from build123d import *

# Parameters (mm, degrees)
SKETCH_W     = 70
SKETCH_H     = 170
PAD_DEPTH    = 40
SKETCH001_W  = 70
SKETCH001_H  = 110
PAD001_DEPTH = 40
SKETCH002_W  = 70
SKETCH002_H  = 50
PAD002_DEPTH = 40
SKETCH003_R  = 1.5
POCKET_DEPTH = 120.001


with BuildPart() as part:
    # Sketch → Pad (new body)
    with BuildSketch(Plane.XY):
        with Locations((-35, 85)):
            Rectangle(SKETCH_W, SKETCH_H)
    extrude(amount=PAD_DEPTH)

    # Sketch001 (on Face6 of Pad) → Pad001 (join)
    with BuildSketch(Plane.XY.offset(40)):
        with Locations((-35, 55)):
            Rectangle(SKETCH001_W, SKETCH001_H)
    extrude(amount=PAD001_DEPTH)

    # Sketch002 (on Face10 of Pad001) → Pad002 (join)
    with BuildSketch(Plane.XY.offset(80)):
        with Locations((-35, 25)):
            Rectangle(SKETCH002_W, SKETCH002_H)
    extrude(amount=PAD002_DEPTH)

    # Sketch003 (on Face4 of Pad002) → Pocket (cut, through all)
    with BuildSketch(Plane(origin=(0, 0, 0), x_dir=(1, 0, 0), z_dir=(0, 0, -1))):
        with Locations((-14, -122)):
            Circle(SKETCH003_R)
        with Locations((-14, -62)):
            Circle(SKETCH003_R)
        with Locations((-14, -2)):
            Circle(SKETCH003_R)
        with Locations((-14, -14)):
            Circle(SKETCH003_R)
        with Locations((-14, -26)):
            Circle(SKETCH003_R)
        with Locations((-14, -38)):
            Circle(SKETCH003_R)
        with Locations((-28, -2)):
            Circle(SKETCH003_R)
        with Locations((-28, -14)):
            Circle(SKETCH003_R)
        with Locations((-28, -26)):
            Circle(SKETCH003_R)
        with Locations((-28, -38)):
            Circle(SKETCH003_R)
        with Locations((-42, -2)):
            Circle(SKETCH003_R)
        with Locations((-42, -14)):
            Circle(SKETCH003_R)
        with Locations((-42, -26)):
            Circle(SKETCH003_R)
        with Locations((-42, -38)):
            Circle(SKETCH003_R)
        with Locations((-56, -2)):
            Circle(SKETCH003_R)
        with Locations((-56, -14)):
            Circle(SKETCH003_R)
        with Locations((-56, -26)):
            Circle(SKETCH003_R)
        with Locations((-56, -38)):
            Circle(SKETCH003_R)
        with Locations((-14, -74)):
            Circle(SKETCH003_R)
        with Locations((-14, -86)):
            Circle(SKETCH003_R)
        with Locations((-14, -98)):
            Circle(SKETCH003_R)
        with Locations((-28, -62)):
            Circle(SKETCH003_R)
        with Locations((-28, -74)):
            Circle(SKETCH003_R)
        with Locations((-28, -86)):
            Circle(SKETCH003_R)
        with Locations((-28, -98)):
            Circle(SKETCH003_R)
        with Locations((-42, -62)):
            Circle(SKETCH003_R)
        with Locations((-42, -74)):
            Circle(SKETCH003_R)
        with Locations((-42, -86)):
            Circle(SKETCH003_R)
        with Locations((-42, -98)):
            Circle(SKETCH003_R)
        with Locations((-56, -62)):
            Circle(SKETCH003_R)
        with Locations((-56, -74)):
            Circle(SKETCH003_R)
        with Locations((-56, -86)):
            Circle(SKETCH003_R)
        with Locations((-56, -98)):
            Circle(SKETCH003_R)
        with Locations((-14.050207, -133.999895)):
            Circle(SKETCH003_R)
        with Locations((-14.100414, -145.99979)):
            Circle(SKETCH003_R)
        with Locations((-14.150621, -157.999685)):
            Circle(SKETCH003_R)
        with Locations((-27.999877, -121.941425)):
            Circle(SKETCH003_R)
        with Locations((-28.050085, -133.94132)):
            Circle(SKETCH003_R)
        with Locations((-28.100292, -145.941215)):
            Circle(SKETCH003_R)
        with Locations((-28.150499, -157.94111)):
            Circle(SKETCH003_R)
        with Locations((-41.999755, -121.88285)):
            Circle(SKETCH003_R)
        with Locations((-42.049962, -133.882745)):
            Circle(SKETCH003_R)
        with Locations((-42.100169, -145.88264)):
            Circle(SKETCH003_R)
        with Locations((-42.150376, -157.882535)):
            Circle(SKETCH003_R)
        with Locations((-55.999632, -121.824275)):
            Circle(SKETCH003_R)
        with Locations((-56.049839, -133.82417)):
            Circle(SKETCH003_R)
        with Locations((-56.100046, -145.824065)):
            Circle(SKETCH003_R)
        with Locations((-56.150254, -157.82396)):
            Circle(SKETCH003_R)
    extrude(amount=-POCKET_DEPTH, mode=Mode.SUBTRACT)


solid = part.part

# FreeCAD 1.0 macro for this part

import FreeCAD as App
import Part
import Sketcher
Q = App.Units.Quantity


def add_polygon(sketch, points):
    """Adds a closed chain of lines whose ends are joined by coincident constraints."""
    first, n = sketch.GeometryCount, len(points)
    for a, b in zip(points, points[1:] + points[:1]):
        sketch.addGeometry(Part.LineSegment(App.Vector(*a, 0), App.Vector(*b, 0)), False)
    for i in range(n):
        sketch.addConstraint(Sketcher.Constraint("Coincident", first + i, 2, first + (i + 1) % n, 1))

doc = App.newDocument("Part")
body = doc.addObject("PartDesign::Body", "Body")

# Sketch on XY plane
sketch1 = body.newObject("Sketcher::SketchObject", "Sketch")
sketch1.AttachmentSupport = (doc.getObject("XY_Plane"), [""])
sketch1.MapMode = "FlatFace"
add_polygon(sketch1, [(-70, 170), (-70, 0), (0, 0), (0, 170)])  # lines 0-3
sketch1.addConstraint(Sketcher.Constraint("Vertical", 0))
sketch1.addConstraint(Sketcher.Constraint("Horizontal", 1))
sketch1.addConstraint(Sketcher.Constraint("Vertical", 2))
sketch1.addConstraint(Sketcher.Constraint("Horizontal", 3))
sketch1.addConstraint(Sketcher.Constraint("Coincident", 1, 2, -1, 1))
sketch1.addConstraint(Sketcher.Constraint("DistanceX", 1, 1, 1, 2, Q("70 mm")))
sketch1.addConstraint(Sketcher.Constraint("DistanceY", 0, 2, 0, 1, Q("170 mm")))
pad1 = body.newObject("PartDesign::Pad", "Pad")
pad1.Profile = sketch1
pad1.Length = 40

# Sketch on XY plane
sketch2 = body.newObject("Sketcher::SketchObject", "Sketch001")
sketch2.AttachmentSupport = (doc.getObject("XY_Plane"), [""])
sketch2.MapMode = "FlatFace"
sketch2.AttachmentOffset = App.Placement(App.Vector(0, 0, 40), App.Rotation())
add_polygon(sketch2, [(-70, 110), (-70, 0), (0, 0), (0, 110)])  # lines 0-3
sketch2.addConstraint(Sketcher.Constraint("Vertical", 0))
sketch2.addConstraint(Sketcher.Constraint("Horizontal", 1))
sketch2.addConstraint(Sketcher.Constraint("Vertical", 2))
sketch2.addConstraint(Sketcher.Constraint("Horizontal", 3))
sketch2.addConstraint(Sketcher.Constraint("Coincident", 1, 2, -1, 1))
sketch2.addConstraint(Sketcher.Constraint("DistanceX", 1, 1, 1, 2, Q("70 mm")))
sketch2.addConstraint(Sketcher.Constraint("DistanceY", 0, 2, 0, 1, Q("110 mm")))
pad2 = body.newObject("PartDesign::Pad", "Pad001")
pad2.Profile = sketch2
pad2.Length = 40

# Sketch on XY plane
sketch3 = body.newObject("Sketcher::SketchObject", "Sketch002")
sketch3.AttachmentSupport = (doc.getObject("XY_Plane"), [""])
sketch3.MapMode = "FlatFace"
sketch3.AttachmentOffset = App.Placement(App.Vector(0, 0, 80), App.Rotation())
add_polygon(sketch3, [(-70, 50), (-70, 0), (0, 0), (0, 50)])  # lines 0-3
sketch3.addConstraint(Sketcher.Constraint("Vertical", 0))
sketch3.addConstraint(Sketcher.Constraint("Horizontal", 1))
sketch3.addConstraint(Sketcher.Constraint("Vertical", 2))
sketch3.addConstraint(Sketcher.Constraint("Horizontal", 3))
sketch3.addConstraint(Sketcher.Constraint("Coincident", 1, 2, -1, 1))
sketch3.addConstraint(Sketcher.Constraint("DistanceX", 1, 1, 1, 2, Q("70 mm")))
sketch3.addConstraint(Sketcher.Constraint("DistanceY", 0, 2, 0, 1, Q("50 mm")))
pad3 = body.newObject("PartDesign::Pad", "Pad002")
pad3.Profile = sketch3
pad3.Length = 40

# Sketch on XY plane
sketch4 = body.newObject("Sketcher::SketchObject", "Sketch003")
sketch4.AttachmentSupport = (doc.getObject("XY_Plane"), [""])
sketch4.MapMode = "FlatFace"
sketch4.addGeometry(Part.Circle(App.Vector(-14, 122, 0), App.Vector(0, 0, 1), 1.5), False)
sketch4.addGeometry(Part.Circle(App.Vector(-14, 62, 0), App.Vector(0, 0, 1), 1.5), False)
sketch4.addGeometry(Part.Circle(App.Vector(-14, 2, 0), App.Vector(0, 0, 1), 1.5), False)
sketch4.addGeometry(Part.Circle(App.Vector(-14, 14, 0), App.Vector(0, 0, 1), 1.5), False)
sketch4.addGeometry(Part.Circle(App.Vector(-14, 26, 0), App.Vector(0, 0, 1), 1.5), False)
sketch4.addGeometry(Part.Circle(App.Vector(-14, 38, 0), App.Vector(0, 0, 1), 1.5), False)
sketch4.addGeometry(Part.Circle(App.Vector(-28, 2, 0), App.Vector(0, 0, 1), 1.5), False)
sketch4.addGeometry(Part.Circle(App.Vector(-28, 14, 0), App.Vector(0, 0, 1), 1.5), False)
sketch4.addGeometry(Part.Circle(App.Vector(-28, 26, 0), App.Vector(0, 0, 1), 1.5), False)
sketch4.addGeometry(Part.Circle(App.Vector(-28, 38, 0), App.Vector(0, 0, 1), 1.5), False)
sketch4.addGeometry(Part.Circle(App.Vector(-42, 2, 0), App.Vector(0, 0, 1), 1.5), False)
sketch4.addGeometry(Part.Circle(App.Vector(-42, 14, 0), App.Vector(0, 0, 1), 1.5), False)
sketch4.addGeometry(Part.Circle(App.Vector(-42, 26, 0), App.Vector(0, 0, 1), 1.5), False)
sketch4.addGeometry(Part.Circle(App.Vector(-42, 38, 0), App.Vector(0, 0, 1), 1.5), False)
sketch4.addGeometry(Part.Circle(App.Vector(-56, 2, 0), App.Vector(0, 0, 1), 1.5), False)
sketch4.addGeometry(Part.Circle(App.Vector(-56, 14, 0), App.Vector(0, 0, 1), 1.5), False)
sketch4.addGeometry(Part.Circle(App.Vector(-56, 26, 0), App.Vector(0, 0, 1), 1.5), False)
sketch4.addGeometry(Part.Circle(App.Vector(-56, 38, 0), App.Vector(0, 0, 1), 1.5), False)
sketch4.addGeometry(Part.Circle(App.Vector(-14, 74, 0), App.Vector(0, 0, 1), 1.5), False)
sketch4.addGeometry(Part.Circle(App.Vector(-14, 86, 0), App.Vector(0, 0, 1), 1.5), False)
sketch4.addGeometry(Part.Circle(App.Vector(-14, 98, 0), App.Vector(0, 0, 1), 1.5), False)
sketch4.addGeometry(Part.Circle(App.Vector(-28, 62, 0), App.Vector(0, 0, 1), 1.5), False)
sketch4.addGeometry(Part.Circle(App.Vector(-28, 74, 0), App.Vector(0, 0, 1), 1.5), False)
sketch4.addGeometry(Part.Circle(App.Vector(-28, 86, 0), App.Vector(0, 0, 1), 1.5), False)
sketch4.addGeometry(Part.Circle(App.Vector(-28, 98, 0), App.Vector(0, 0, 1), 1.5), False)
sketch4.addGeometry(Part.Circle(App.Vector(-42, 62, 0), App.Vector(0, 0, 1), 1.5), False)
sketch4.addGeometry(Part.Circle(App.Vector(-42, 74, 0), App.Vector(0, 0, 1), 1.5), False)
sketch4.addGeometry(Part.Circle(App.Vector(-42, 86, 0), App.Vector(0, 0, 1), 1.5), False)
sketch4.addGeometry(Part.Circle(App.Vector(-42, 98, 0), App.Vector(0, 0, 1), 1.5), False)
sketch4.addGeometry(Part.Circle(App.Vector(-56, 62, 0), App.Vector(0, 0, 1), 1.5), False)
sketch4.addGeometry(Part.Circle(App.Vector(-56, 74, 0), App.Vector(0, 0, 1), 1.5), False)
sketch4.addGeometry(Part.Circle(App.Vector(-56, 86, 0), App.Vector(0, 0, 1), 1.5), False)
sketch4.addGeometry(Part.Circle(App.Vector(-56, 98, 0), App.Vector(0, 0, 1), 1.5), False)
sketch4.addGeometry(Part.Circle(App.Vector(-14.1, 134, 0), App.Vector(0, 0, 1), 1.5), False)
sketch4.addGeometry(Part.Circle(App.Vector(-14.1, 146, 0), App.Vector(0, 0, 1), 1.5), False)
sketch4.addGeometry(Part.Circle(App.Vector(-14.2, 158, 0), App.Vector(0, 0, 1), 1.5), False)
sketch4.addGeometry(Part.Circle(App.Vector(-28, 121.9, 0), App.Vector(0, 0, 1), 1.5), False)
sketch4.addGeometry(Part.Circle(App.Vector(-28.1, 133.9, 0), App.Vector(0, 0, 1), 1.5), False)
sketch4.addGeometry(Part.Circle(App.Vector(-28.1, 145.9, 0), App.Vector(0, 0, 1), 1.5), False)
sketch4.addGeometry(Part.Circle(App.Vector(-28.2, 157.9, 0), App.Vector(0, 0, 1), 1.5), False)
sketch4.addGeometry(Part.Circle(App.Vector(-42, 121.9, 0), App.Vector(0, 0, 1), 1.5), False)
sketch4.addGeometry(Part.Circle(App.Vector(-42, 133.9, 0), App.Vector(0, 0, 1), 1.5), False)
sketch4.addGeometry(Part.Circle(App.Vector(-42.1, 145.9, 0), App.Vector(0, 0, 1), 1.5), False)
sketch4.addGeometry(Part.Circle(App.Vector(-42.2, 157.9, 0), App.Vector(0, 0, 1), 1.5), False)
sketch4.addGeometry(Part.Circle(App.Vector(-56, 121.8, 0), App.Vector(0, 0, 1), 1.5), False)
sketch4.addGeometry(Part.Circle(App.Vector(-56, 133.8, 0), App.Vector(0, 0, 1), 1.5), False)
sketch4.addGeometry(Part.Circle(App.Vector(-56.1, 145.8, 0), App.Vector(0, 0, 1), 1.5), False)
sketch4.addGeometry(Part.Circle(App.Vector(-56.2, 157.8, 0), App.Vector(0, 0, 1), 1.5), False)
sketch4.addConstraint(Sketcher.Constraint("Equal", 0, 1))
sketch4.addConstraint(Sketcher.Constraint("Equal", 1, 2))
sketch4.addConstraint(Sketcher.Constraint("Equal", 2, 3))
sketch4.addConstraint(Sketcher.Constraint("Equal", 3, 4))
sketch4.addConstraint(Sketcher.Constraint("Equal", 4, 5))
sketch4.addConstraint(Sketcher.Constraint("Equal", 5, 6))
sketch4.addConstraint(Sketcher.Constraint("Equal", 6, 7))
sketch4.addConstraint(Sketcher.Constraint("Equal", 7, 8))
sketch4.addConstraint(Sketcher.Constraint("Equal", 8, 9))
sketch4.addConstraint(Sketcher.Constraint("Equal", 9, 10))
sketch4.addConstraint(Sketcher.Constraint("Equal", 10, 11))
sketch4.addConstraint(Sketcher.Constraint("Equal", 11, 12))
sketch4.addConstraint(Sketcher.Constraint("Equal", 12, 13))
sketch4.addConstraint(Sketcher.Constraint("Equal", 13, 14))
sketch4.addConstraint(Sketcher.Constraint("Equal", 14, 15))
sketch4.addConstraint(Sketcher.Constraint("Equal", 15, 16))
sketch4.addConstraint(Sketcher.Constraint("Equal", 16, 17))
sketch4.addConstraint(Sketcher.Constraint("Equal", 17, 18))
sketch4.addConstraint(Sketcher.Constraint("Equal", 18, 19))
sketch4.addConstraint(Sketcher.Constraint("Equal", 19, 20))
sketch4.addConstraint(Sketcher.Constraint("Equal", 20, 21))
sketch4.addConstraint(Sketcher.Constraint("Equal", 21, 22))
sketch4.addConstraint(Sketcher.Constraint("Equal", 22, 23))
sketch4.addConstraint(Sketcher.Constraint("Equal", 23, 24))
sketch4.addConstraint(Sketcher.Constraint("Equal", 24, 25))
sketch4.addConstraint(Sketcher.Constraint("Equal", 25, 26))
sketch4.addConstraint(Sketcher.Constraint("Equal", 26, 27))
sketch4.addConstraint(Sketcher.Constraint("Equal", 27, 28))
sketch4.addConstraint(Sketcher.Constraint("Equal", 28, 29))
sketch4.addConstraint(Sketcher.Constraint("Equal", 29, 30))
sketch4.addConstraint(Sketcher.Constraint("Equal", 30, 31))
sketch4.addConstraint(Sketcher.Constraint("Equal", 31, 32))
sketch4.addConstraint(Sketcher.Constraint("Equal", 32, 33))
sketch4.addConstraint(Sketcher.Constraint("Equal", 33, 34))
sketch4.addConstraint(Sketcher.Constraint("Equal", 34, 35))
sketch4.addConstraint(Sketcher.Constraint("Equal", 35, 36))
sketch4.addConstraint(Sketcher.Constraint("Equal", 36, 37))
sketch4.addConstraint(Sketcher.Constraint("Equal", 37, 38))
sketch4.addConstraint(Sketcher.Constraint("Equal", 38, 39))
sketch4.addConstraint(Sketcher.Constraint("Equal", 39, 40))
sketch4.addConstraint(Sketcher.Constraint("Equal", 40, 41))
sketch4.addConstraint(Sketcher.Constraint("Equal", 41, 42))
sketch4.addConstraint(Sketcher.Constraint("Equal", 42, 43))
sketch4.addConstraint(Sketcher.Constraint("Equal", 43, 44))
sketch4.addConstraint(Sketcher.Constraint("Equal", 44, 45))
sketch4.addConstraint(Sketcher.Constraint("Equal", 45, 46))
sketch4.addConstraint(Sketcher.Constraint("Equal", 46, 47))
sketch4.addConstraint(Sketcher.Constraint("Horizontal", 2, 3, 6, 3))
sketch4.addConstraint(Sketcher.Constraint("Horizontal", 3, 3, 7, 3))
sketch4.addConstraint(Sketcher.Constraint("Horizontal", 4, 3, 8, 3))
sketch4.addConstraint(Sketcher.Constraint("Horizontal", 5, 3, 9, 3))
sketch4.addConstraint(Sketcher.Constraint("Horizontal", 6, 3, 10, 3))
sketch4.addConstraint(Sketcher.Constraint("Horizontal", 7, 3, 11, 3))
sketch4.addConstraint(Sketcher.Constraint("Horizontal", 8, 3, 12, 3))
sketch4.addConstraint(Sketcher.Constraint("Horizontal", 9, 3, 13, 3))
sketch4.addConstraint(Sketcher.Constraint("Horizontal", 10, 3, 14, 3))
sketch4.addConstraint(Sketcher.Constraint("Horizontal", 11, 3, 15, 3))
sketch4.addConstraint(Sketcher.Constraint("Horizontal", 12, 3, 16, 3))
sketch4.addConstraint(Sketcher.Constraint("Horizontal", 13, 3, 17, 3))
sketch4.addConstraint(Sketcher.Constraint("Horizontal", 1, 3, 21, 3))
sketch4.addConstraint(Sketcher.Constraint("Horizontal", 18, 3, 22, 3))
sketch4.addConstraint(Sketcher.Constraint("Horizontal", 19, 3, 23, 3))
sketch4.addConstraint(Sketcher.Constraint("Horizontal", 20, 3, 24, 3))
sketch4.addConstraint(Sketcher.Constraint("Horizontal", 21, 3, 25, 3))
sketch4.addConstraint(Sketcher.Constraint("Horizontal", 22, 3, 26, 3))
sketch4.addConstraint(Sketcher.Constraint("Horizontal", 23, 3, 27, 3))
sketch4.addConstraint(Sketcher.Constraint("Horizontal", 24, 3, 28, 3))
sketch4.addConstraint(Sketcher.Constraint("Horizontal", 25, 3, 29, 3))
sketch4.addConstraint(Sketcher.Constraint("Horizontal", 26, 3, 30, 3))
sketch4.addConstraint(Sketcher.Constraint("Horizontal", 27, 3, 31, 3))
sketch4.addConstraint(Sketcher.Constraint("Horizontal", 28, 3, 32, 3))
sketch4.addConstraint(Sketcher.Constraint("Vertical", 0, 3, 1, 3))
sketch4.addConstraint(Sketcher.Constraint("Vertical", 1, 3, 2, 3))
sketch4.addConstraint(Sketcher.Constraint("Vertical", 2, 3, 3, 3))
sketch4.addConstraint(Sketcher.Constraint("Vertical", 3, 3, 4, 3))
sketch4.addConstraint(Sketcher.Constraint("Vertical", 4, 3, 5, 3))
sketch4.addConstraint(Sketcher.Constraint("Vertical", 6, 3, 7, 3))
sketch4.addConstraint(Sketcher.Constraint("Vertical", 7, 3, 8, 3))
sketch4.addConstraint(Sketcher.Constraint("Vertical", 8, 3, 9, 3))
sketch4.addConstraint(Sketcher.Constraint("Vertical", 10, 3, 11, 3))
sketch4.addConstraint(Sketcher.Constraint("Vertical", 11, 3, 12, 3))
sketch4.addConstraint(Sketcher.Constraint("Vertical", 12, 3, 13, 3))
sketch4.addConstraint(Sketcher.Constraint("Vertical", 14, 3, 15, 3))
sketch4.addConstraint(Sketcher.Constraint("Vertical", 15, 3, 16, 3))
sketch4.addConstraint(Sketcher.Constraint("Vertical", 16, 3, 17, 3))
sketch4.addConstraint(Sketcher.Constraint("Vertical", 5, 3, 18, 3))
sketch4.addConstraint(Sketcher.Constraint("Vertical", 18, 3, 19, 3))
sketch4.addConstraint(Sketcher.Constraint("Vertical", 19, 3, 20, 3))
sketch4.addConstraint(Sketcher.Constraint("Vertical", 9, 3, 21, 3))
sketch4.addConstraint(Sketcher.Constraint("Vertical", 21, 3, 22, 3))
sketch4.addConstraint(Sketcher.Constraint("Vertical", 22, 3, 23, 3))
sketch4.addConstraint(Sketcher.Constraint("Vertical", 23, 3, 24, 3))
sketch4.addConstraint(Sketcher.Constraint("Vertical", 13, 3, 25, 3))
sketch4.addConstraint(Sketcher.Constraint("Vertical", 25, 3, 26, 3))
sketch4.addConstraint(Sketcher.Constraint("Vertical", 26, 3, 27, 3))
sketch4.addConstraint(Sketcher.Constraint("Vertical", 27, 3, 28, 3))
sketch4.addConstraint(Sketcher.Constraint("Vertical", 17, 3, 29, 3))
sketch4.addConstraint(Sketcher.Constraint("Vertical", 29, 3, 30, 3))
sketch4.addConstraint(Sketcher.Constraint("Vertical", 30, 3, 31, 3))
sketch4.addConstraint(Sketcher.Constraint("Vertical", 31, 3, 32, 3))
sketch4.addConstraint(Sketcher.Constraint("Diameter", 0, Q("3 mm")))
sketch4.addConstraint(Sketcher.Constraint("DistanceX", 0, 3, -1, 1, Q("14 mm")))
sketch4.addConstraint(Sketcher.Constraint("DistanceY", -1, 1, 0, 3, Q("122 mm")))
sketch4.addConstraint(Sketcher.Constraint("DistanceY", -1, 1, 1, 3, Q("62 mm")))
sketch4.addConstraint(Sketcher.Constraint("DistanceY", -1, 1, 2, 3, Q("2 mm")))
sketch4.addConstraint(Sketcher.Constraint("DistanceY", -1, 1, 3, 3, Q("14 mm")))
sketch4.addConstraint(Sketcher.Constraint("DistanceY", -1, 1, 4, 3, Q("26 mm")))
sketch4.addConstraint(Sketcher.Constraint("DistanceY", -1, 1, 5, 3, Q("38 mm")))
sketch4.addConstraint(Sketcher.Constraint("DistanceX", 6, 3, -1, 1, Q("28 mm")))
sketch4.addConstraint(Sketcher.Constraint("DistanceX", 10, 3, -1, 1, Q("42 mm")))
sketch4.addConstraint(Sketcher.Constraint("DistanceX", 14, 3, -1, 1, Q("56 mm")))
sketch4.addConstraint(Sketcher.Constraint("DistanceY", -1, 1, 18, 3, Q("74 mm")))
sketch4.addConstraint(Sketcher.Constraint("DistanceY", -1, 1, 19, 3, Q("86 mm")))
sketch4.addConstraint(Sketcher.Constraint("DistanceY", -1, 1, 20, 3, Q("98 mm")))
sketch4.addConstraint(Sketcher.Constraint("DistanceX", 39, 3, -1, 1, Q("28.150499 mm")))
sketch4.addConstraint(Sketcher.Constraint("DistanceY", -1, 1, 34, 3, Q("145.99979 mm")))
sketch4.addConstraint(Sketcher.Constraint("DistanceX", 35, 3, -1, 1, Q("14.150621 mm")))
sketch4.addConstraint(Sketcher.Constraint("DistanceY", -1, 1, 37, 3, Q("133.94132 mm")))
sketch4.addConstraint(Sketcher.Constraint("DistanceX", 38, 3, -1, 1, Q("28.100292 mm")))
sketch4.addConstraint(Sketcher.Constraint("DistanceY", -1, 1, 39, 3, Q("157.94111 mm")))
sketch4.addConstraint(Sketcher.Constraint("DistanceY", -1, 1, 40, 3, Q("121.88285 mm")))
sketch4.addConstraint(Sketcher.Constraint("DistanceX", 42, 3, -1, 1, Q("42.100169 mm")))
sketch4.addConstraint(Sketcher.Constraint("DistanceY", -1, 1, 42, 3, Q("145.88264 mm")))
sketch4.addConstraint(Sketcher.Constraint("DistanceX", 44, 3, -1, 1, Q("55.999632 mm")))
sketch4.addConstraint(Sketcher.Constraint("DistanceX", 45, 3, -1, 1, Q("56.049839 mm")))
sketch4.addConstraint(Sketcher.Constraint("DistanceY", -1, 1, 45, 3, Q("133.82417 mm")))
sketch4.addConstraint(Sketcher.Constraint("DistanceY", -1, 1, 47, 3, Q("157.82396 mm")))
sketch4.addConstraint(Sketcher.Constraint("DistanceY", 33, 3, 35, 3, Q("23.99979 mm")))
sketch4.addConstraint(Sketcher.Constraint("DistanceX", 36, 3, 33, 3, Q("13.94967 mm")))
sketch4.addConstraint(Sketcher.Constraint("DistanceY", 36, 3, 33, 3, Q("12.05847 mm")))
sketch4.addConstraint(Sketcher.Constraint("DistanceX", 37, 3, 34, 3, Q("13.949671 mm")))
sketch4.addConstraint(Sketcher.Constraint("DistanceY", 33, 3, 38, 3, Q("11.94132 mm")))
sketch4.addConstraint(Sketcher.Constraint("DistanceX", 40, 3, 37, 3, Q("13.94967 mm")))
sketch4.addConstraint(Sketcher.Constraint("DistanceX", 41, 3, 38, 3, Q("13.94967 mm")))
sketch4.addConstraint(Sketcher.Constraint("DistanceY", 41, 3, 38, 3, Q("12.05847 mm")))
sketch4.addConstraint(Sketcher.Constraint("DistanceY", 38, 3, 43, 3, Q("11.94132 mm")))
sketch4.addConstraint(Sketcher.Constraint("DistanceX", 43, 3, 37, 3, Q("14.100291 mm")))
sketch4.addConstraint(Sketcher.Constraint("DistanceY", 44, 3, 41, 3, Q("12.05847 mm")))
sketch4.addConstraint(Sketcher.Constraint("DistanceY", 41, 3, 46, 3, Q("11.94132 mm")))
sketch4.addConstraint(Sketcher.Constraint("DistanceX", 46, 3, 43, 3, Q("13.94967 mm")))
sketch4.addConstraint(Sketcher.Constraint("DistanceX", 47, 3, 41, 3, Q("14.100292 mm")))
sketch4.addConstraint(Sketcher.Constraint("DistanceX", 33, 3, -1, 1, Q("14.050207 mm")))
sketch4.addConstraint(Sketcher.Constraint("DistanceY", -1, 1, 33, 3, Q("133.999895 mm")))
sketch4.addConstraint(Sketcher.Constraint("DistanceX", 34, 3, -1, 1, Q("14.100414 mm")))
pocket1 = body.newObject("PartDesign::Pocket", "Pocket")
pocket1.Profile = sketch4
pocket1.Type = "ThroughAll"
pocket1.Reversed = True

doc.recompute()
